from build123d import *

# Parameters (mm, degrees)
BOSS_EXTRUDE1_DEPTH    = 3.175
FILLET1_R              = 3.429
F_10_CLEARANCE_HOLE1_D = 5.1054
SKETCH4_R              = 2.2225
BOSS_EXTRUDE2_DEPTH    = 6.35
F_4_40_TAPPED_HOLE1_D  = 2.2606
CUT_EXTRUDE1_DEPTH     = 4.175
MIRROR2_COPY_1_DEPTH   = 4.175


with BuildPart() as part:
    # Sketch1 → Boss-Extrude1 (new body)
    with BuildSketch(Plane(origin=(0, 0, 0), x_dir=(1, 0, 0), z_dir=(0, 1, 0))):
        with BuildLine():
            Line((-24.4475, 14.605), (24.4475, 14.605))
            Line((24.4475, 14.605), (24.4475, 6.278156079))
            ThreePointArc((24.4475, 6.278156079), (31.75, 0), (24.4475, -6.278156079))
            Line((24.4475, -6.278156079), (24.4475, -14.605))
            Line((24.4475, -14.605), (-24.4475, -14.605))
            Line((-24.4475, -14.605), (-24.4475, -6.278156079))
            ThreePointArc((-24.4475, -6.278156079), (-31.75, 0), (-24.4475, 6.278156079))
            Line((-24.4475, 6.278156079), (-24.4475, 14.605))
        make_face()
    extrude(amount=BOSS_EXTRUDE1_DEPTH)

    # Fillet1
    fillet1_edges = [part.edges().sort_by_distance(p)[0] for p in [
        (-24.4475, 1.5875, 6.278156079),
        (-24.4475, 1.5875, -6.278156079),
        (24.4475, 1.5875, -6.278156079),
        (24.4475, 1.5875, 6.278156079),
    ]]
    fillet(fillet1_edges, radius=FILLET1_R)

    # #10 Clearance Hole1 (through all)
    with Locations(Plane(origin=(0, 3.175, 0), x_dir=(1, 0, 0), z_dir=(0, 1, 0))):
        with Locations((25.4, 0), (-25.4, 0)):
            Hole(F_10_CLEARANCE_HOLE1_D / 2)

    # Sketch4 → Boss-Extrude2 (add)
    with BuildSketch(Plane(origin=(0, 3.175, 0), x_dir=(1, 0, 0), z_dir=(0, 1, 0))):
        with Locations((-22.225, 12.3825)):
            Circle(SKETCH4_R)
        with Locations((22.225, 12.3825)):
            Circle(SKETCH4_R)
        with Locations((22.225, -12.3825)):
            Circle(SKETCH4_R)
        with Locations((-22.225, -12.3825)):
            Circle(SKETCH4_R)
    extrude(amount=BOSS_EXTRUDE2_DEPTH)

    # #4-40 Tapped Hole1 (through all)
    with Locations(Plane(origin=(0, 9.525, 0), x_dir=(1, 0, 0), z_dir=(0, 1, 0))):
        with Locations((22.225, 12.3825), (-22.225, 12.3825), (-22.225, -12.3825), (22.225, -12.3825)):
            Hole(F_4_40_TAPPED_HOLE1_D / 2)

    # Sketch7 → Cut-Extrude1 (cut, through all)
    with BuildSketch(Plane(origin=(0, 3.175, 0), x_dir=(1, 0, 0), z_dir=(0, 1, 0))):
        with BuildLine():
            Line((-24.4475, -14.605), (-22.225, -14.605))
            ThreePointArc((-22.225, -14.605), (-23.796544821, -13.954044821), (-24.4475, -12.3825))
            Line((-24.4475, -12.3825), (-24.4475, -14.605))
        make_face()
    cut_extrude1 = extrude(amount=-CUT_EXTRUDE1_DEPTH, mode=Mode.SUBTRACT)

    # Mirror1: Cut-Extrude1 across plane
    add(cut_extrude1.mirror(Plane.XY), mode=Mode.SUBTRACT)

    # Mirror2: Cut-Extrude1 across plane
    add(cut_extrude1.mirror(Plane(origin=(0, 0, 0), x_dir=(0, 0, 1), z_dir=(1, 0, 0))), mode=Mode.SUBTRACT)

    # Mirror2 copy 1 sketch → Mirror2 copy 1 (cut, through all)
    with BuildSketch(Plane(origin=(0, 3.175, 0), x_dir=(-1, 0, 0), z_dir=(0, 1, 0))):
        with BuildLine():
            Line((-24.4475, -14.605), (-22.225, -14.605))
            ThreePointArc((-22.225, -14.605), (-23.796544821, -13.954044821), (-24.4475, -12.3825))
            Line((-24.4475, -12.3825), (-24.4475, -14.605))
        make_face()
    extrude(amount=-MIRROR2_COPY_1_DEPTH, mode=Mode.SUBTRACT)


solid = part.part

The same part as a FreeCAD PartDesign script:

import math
import FreeCAD as App
import Part
import Sketcher
Q = App.Units.Quantity


def edges_at(feature, points):
    """Names of the edges that pass closest to the given points."""
    edges = feature.Shape.Edges
    near = lambda p: min(range(len(edges)), key=lambda i: edges[i].distToShape(Part.Vertex(*p))[0])
    return sorted({f"Edge{near(p) + 1}" for p in points})

doc = App.newDocument("Part")
body = doc.addObject("PartDesign::Body", "Body")

sketch1 = body.newObject("Sketcher::SketchObject", "Sketch")
sketch1.AttachmentSupport = (doc.getObject("XZ_Plane"), [""])
sketch1.MapMode = "FlatFace"
sketch1.addGeometry(Part.LineSegment(App.Vector(24.4475, -14.605, 0), App.Vector(-24.4475, -14.605, 0)), False)
sketch1.addGeometry(Part.LineSegment(App.Vector(-24.4475, -14.605, 0), App.Vector(-24.4475, -6.278156, 0)), False)
sketch1.addGeometry(Part.ArcOfCircle(Part.Circle(App.Vector(-25.4, 0, 0), App.Vector(0, 0, 1), 6.35), math.radians(81.373073), math.radians(278.626927)), False)
sketch1.addGeometry(Part.LineSegment(App.Vector(-24.4475, 6.278156, 0), App.Vector(-24.4475, 14.605, 0)), False)
sketch1.addGeometry(Part.LineSegment(App.Vector(-24.4475, 14.605, 0), App.Vector(24.4475, 14.605, 0)), False)
sketch1.addGeometry(Part.LineSegment(App.Vector(24.4475, 14.605, 0), App.Vector(24.4475, 6.278156, 0)), False)
sketch1.addGeometry(Part.ArcOfCircle(Part.Circle(App.Vector(25.4, 0, 0), App.Vector(0, 0, 1), 6.35), math.radians(-98.626927), math.radians(98.626927)), False)
sketch1.addGeometry(Part.LineSegment(App.Vector(24.4475, -6.278156, 0), App.Vector(24.4475, -14.605, 0)), False)
sketch1.addConstraint(Sketcher.Constraint("Coincident", 0, 2, 1, 1))
sketch1.addConstraint(Sketcher.Constraint("Coincident", 1, 2, 2, 2))
sketch1.addConstraint(Sketcher.Constraint("Coincident", 2, 1, 3, 1))
sketch1.addConstraint(Sketcher.Constraint("Coincident", 3, 2, 4, 1))
sketch1.addConstraint(Sketcher.Constraint("Coincident", 4, 2, 5, 1))
sketch1.addConstraint(Sketcher.Constraint("Coincident", 5, 2, 6, 2))
sketch1.addConstraint(Sketcher.Constraint("Coincident", 6, 1, 7, 1))
sketch1.addConstraint(Sketcher.Constraint("Coincident", 7, 2, 0, 1))
sketch1.addConstraint(Sketcher.Constraint("Horizontal", 0))
sketch1.addConstraint(Sketcher.Constraint("Vertical", 1))
sketch1.addConstraint(Sketcher.Constraint("Vertical", 3))
sketch1.addConstraint(Sketcher.Constraint("Horizontal", 4))
sketch1.addConstraint(Sketcher.Constraint("Vertical", 5))
sketch1.addConstraint(Sketcher.Constraint("Vertical", 7))
sketch1.addConstraint(Sketcher.Constraint("Equal", 2, 6))
sketch1.addConstraint(Sketcher.Constraint("Symmetric", 2, 3, 6, 3, -1, 1))
sketch1.addConstraint(Sketcher.Constraint("Symmetric", 0, 2, 4, 2, -1, 1))
sketch1.addConstraint(Sketcher.Constraint("Symmetric", 2, 1, 5, 2, -2))
sketch1.addConstraint(Sketcher.Constraint("Horizontal", 1, 2, 6, 1))
sketch1.addConstraint(Sketcher.Constraint("Radius", 2, Q("0.25 in")))
sketch1.addConstraint(Sketcher.Constraint("DistanceX", 2, 3, -1, 1, Q("1 in")))
sketch1.addConstraint(Sketcher.Constraint("DistanceX", 0, 2, 0, 1, Q("1.925 in")))
sketch1.addConstraint(Sketcher.Constraint("DistanceY", 0, 2, 3, 2, Q("1.15 in")))
pad1 = body.newObject("PartDesign::Pad", "Pad")
pad1.Profile = sketch1
pad1.Length = Q("0.125 in")
pad1.Reversed = True
doc.recompute()

fillet = body.newObject("PartDesign::Fillet", "Fillet")
fillet.Base = (pad1, edges_at(pad1, [
    (-24.448, 1.587, 6.278),
    (-24.448, 1.587, -6.278),
    (24.448, 1.587, -6.278),
    (24.448, 1.587, 6.278),
]))
fillet.Radius = Q("0.135 in")

sketch2 = body.newObject("Sketcher::SketchObject", "Sketch001")
sketch2.AttachmentSupport = (doc.getObject("XZ_Plane"), [""])
sketch2.MapMode = "FlatFace"
sketch2.AttachmentOffset = App.Placement(App.Vector(0, 0, -0.125 * 25.4), App.Rotation())
sketch2.addGeometry(Part.Circle(App.Vector(25.4, 0, 0), App.Vector(0, 0, 1), 2.5527), False)
sketch2.addGeometry(Part.Circle(App.Vector(-25.4, 0, 0), App.Vector(0, 0, 1), 2.5527), False)
sketch2.addConstraint(Sketcher.Constraint("Equal", 0, 1))
sketch2.addConstraint(Sketcher.Constraint("Symmetric", 0, 3, 1, 3, -1, 1))
sketch2.addConstraint(Sketcher.Constraint("PointOnObject", 0, 3, -1))
sketch2.addConstraint(Sketcher.Constraint("Diameter", 0, Q("0.201 in")))
sketch2.addConstraint(Sketcher.Constraint("DistanceX", -1, 1, 0, 3, Q("1 in")))
doc.recompute()
hole = body.newObject("PartDesign::Hole", "Hole")
hole.Profile = sketch2
hole.ThreadType = "None"
hole.Diameter = Q("0.201 in")
hole.DepthType = "ThroughAll"
hole.Reversed = True

sketch3 = body.newObject("Sketcher::SketchObject", "Sketch002")
sketch3.AttachmentSupport = (doc.getObject("XZ_Plane"), [""])
sketch3.MapMode = "FlatFace"
sketch3.AttachmentOffset = App.Placement(App.Vector(0, 0, -0.125 * 25.4), App.Rotation())
sketch3.addGeometry(Part.Circle(App.Vector(-22.225, -12.3825, 0), App.Vector(0, 0, 1), 2.2225), False)
sketch3.addGeometry(Part.Circle(App.Vector(22.225, -12.3825, 0), App.Vector(0, 0, 1), 2.2225), False)
sketch3.addGeometry(Part.Circle(App.Vector(22.225, 12.3825, 0), App.Vector(0, 0, 1), 2.2225), False)
sketch3.addGeometry(Part.Circle(App.Vector(-22.225, 12.3825, 0), App.Vector(0, 0, 1), 2.2225), False)
sketch3.addConstraint(Sketcher.Constraint("Equal", 0, 1))
sketch3.addConstraint(Sketcher.Constraint("Equal", 1, 2))
sketch3.addConstraint(Sketcher.Constraint("Equal", 2, 3))
sketch3.addConstraint(Sketcher.Constraint("Symmetric", 0, 3, 2, 3, -1, 1))
sketch3.addConstraint(Sketcher.Constraint("Symmetric", 1, 3, 3, 3, -1, 1))
sketch3.addConstraint(Sketcher.Constraint("Symmetric", 0, 3, 1, 3, -2))
sketch3.addConstraint(Sketcher.Constraint("Diameter", 0, Q("0.175 in")))
sketch3.addConstraint(Sketcher.Constraint("DistanceX", 0, 3, 1, 3, Q("1.75 in")))
sketch3.addConstraint(Sketcher.Constraint("DistanceY", 1, 3, 2, 3, Q("0.975 in")))
pad2 = body.newObject("PartDesign::Pad", "Pad001")
pad2.Profile = sketch3
pad2.Length = Q("0.25 in")
pad2.Reversed = True

sketch4 = body.newObject("Sketcher::SketchObject", "Sketch003")
sketch4.AttachmentSupport = (doc.getObject("XZ_Plane"), [""])
sketch4.MapMode = "FlatFace"
sketch4.AttachmentOffset = App.Placement(App.Vector(0, 0, -0.375 * 25.4), App.Rotation())
sketch4.addGeometry(Part.Circle(App.Vector(22.225, -12.3825, 0), App.Vector(0, 0, 1), 1.1303), False)
sketch4.addGeometry(Part.Circle(App.Vector(-22.225, -12.3825, 0), App.Vector(0, 0, 1), 1.1303), False)
sketch4.addGeometry(Part.Circle(App.Vector(-22.225, 12.3825, 0), App.Vector(0, 0, 1), 1.1303), False)
sketch4.addGeometry(Part.Circle(App.Vector(22.225, 12.3825, 0), App.Vector(0, 0, 1), 1.1303), False)
sketch4.addConstraint(Sketcher.Constraint("Equal", 0, 1))
sketch4.addConstraint(Sketcher.Constraint("Equal", 1, 2))
sketch4.addConstraint(Sketcher.Constraint("Equal", 2, 3))
sketch4.addConstraint(Sketcher.Constraint("Symmetric", 0, 3, 2, 3, -1, 1))
sketch4.addConstraint(Sketcher.Constraint("Symmetric", 1, 3, 3, 3, -1, 1))
sketch4.addConstraint(Sketcher.Constraint("Symmetric", 0, 3, 1, 3, -2))
sketch4.addConstraint(Sketcher.Constraint("Diameter", 0, Q("0.089 in")))
sketch4.addConstraint(Sketcher.Constraint("DistanceX", 1, 3, 0, 3, Q("1.75 in")))
sketch4.addConstraint(Sketcher.Constraint("DistanceY", 1, 3, 2, 3, Q("0.975 in")))
doc.recompute()
hole2 = body.newObject("PartDesign::Hole", "Hole001")
hole2.Profile = sketch4
hole2.ThreadType = "None"
hole2.Diameter = Q("0.089 in")
hole2.DepthType = "ThroughAll"
hole2.Reversed = True

sketch5 = body.newObject("Sketcher::SketchObject", "Sketch004")
sketch5.AttachmentSupport = (doc.getObject("XZ_Plane"), [""])
sketch5.MapMode = "FlatFace"
sketch5.AttachmentOffset = App.Placement(App.Vector(0, 0, -0.125 * 25.4), App.Rotation())
sketch5.addGeometry(Part.LineSegment(App.Vector(-24.4475, 14.605, 0), App.Vector(-22.225, 14.605, 0)), False)
sketch5.addGeometry(Part.ArcOfCircle(Part.Circle(App.Vector(-22.225, 12.3825, 0), App.Vector(0, 0, 1), 2.2225), math.radians(90), math.radians(180)), False)
sketch5.addGeometry(Part.LineSegment(App.Vector(-24.4475, 12.3825, 0), App.Vector(-24.4475, 14.605, 0)), False)
sketch5.addConstraint(Sketcher.Constraint("Tangent", 0, 2, 1, 1))
sketch5.addConstraint(Sketcher.Constraint("Tangent", 1, 2, 2, 1))
sketch5.addConstraint(Sketcher.Constraint("Coincident", 2, 2, 0, 1))
sketch5.addConstraint(Sketcher.Constraint("Horizontal", 0))
sketch5.addConstraint(Sketcher.Constraint("Vertical", 2))
sketch5.addConstraint(Sketcher.Constraint("Radius", 1, Q("0.0875 in")))
sketch5.addConstraint(Sketcher.Constraint("DistanceX", 1, 3, -1, 1, Q("0.875 in")))
sketch5.addConstraint(Sketcher.Constraint("DistanceY", -1, 1, 0, 2, Q("0.575 in")))
pocket1 = body.newObject("PartDesign::Pocket", "Pocket")
pocket1.Profile = sketch5
pocket1.Type = "ThroughAll"
pocket1.Reversed = True
doc.recompute()

mirrored = body.newObject("PartDesign::Mirrored", "Mirrored")
mirrored.Originals = [pocket1]
mirrored.MirrorPlane = (doc.getObject("XY_Plane"), [""])
body.Tip = mirrored
doc.recompute()

mirrored2 = body.newObject("PartDesign::Mirrored", "Mirrored001")
mirrored2.Originals = [pocket1]
mirrored2.MirrorPlane = (doc.getObject("YZ_Plane"), [""])
body.Tip = mirrored2

sketch6 = body.newObject("Sketcher::SketchObject", "Sketch005")
sketch6.AttachmentSupport = (doc.getObject("XZ_Plane"), [""])
sketch6.MapMode = "FlatFace"
sketch6.AttachmentOffset = App.Placement(App.Vector(0, 0, -0.125 * 25.4), App.Rotation())
sketch6.addGeometry(Part.LineSegment(App.Vector(24.4475, -14.605, 0), App.Vector(22.225, -14.605, 0)), False)
sketch6.addGeometry(Part.ArcOfCircle(Part.Circle(App.Vector(22.225, -12.3825, 0), App.Vector(0, 0, 1), 2.2225), math.radians(-90), math.radians(0)), False)
sketch6.addGeometry(Part.LineSegment(App.Vector(24.4475, -12.3825, 0), App.Vector(24.4475, -14.605, 0)), False)
sketch6.addConstraint(Sketcher.Constraint("Tangent", 0, 2, 1, 1))
sketch6.addConstraint(Sketcher.Constraint("Tangent", 1, 2, 2, 1))
sketch6.addConstraint(Sketcher.Constraint("Coincident", 2, 2, 0, 1))
sketch6.addConstraint(Sketcher.Constraint("Horizontal", 0))
sketch6.addConstraint(Sketcher.Constraint("Vertical", 2))
sketch6.addConstraint(Sketcher.Constraint("Radius", 1, Q("0.0875 in")))
sketch6.addConstraint(Sketcher.Constraint("DistanceX", -1, 1, 1, 3, Q("0.875 in")))
sketch6.addConstraint(Sketcher.Constraint("DistanceY", 0, 2, -1, 1, Q("0.575 in")))
pocket2 = body.newObject("PartDesign::Pocket", "Pocket001")
pocket2.Profile = sketch6
pocket2.Type = "ThroughAll"
pocket2.Reversed = True

doc.recompute()
